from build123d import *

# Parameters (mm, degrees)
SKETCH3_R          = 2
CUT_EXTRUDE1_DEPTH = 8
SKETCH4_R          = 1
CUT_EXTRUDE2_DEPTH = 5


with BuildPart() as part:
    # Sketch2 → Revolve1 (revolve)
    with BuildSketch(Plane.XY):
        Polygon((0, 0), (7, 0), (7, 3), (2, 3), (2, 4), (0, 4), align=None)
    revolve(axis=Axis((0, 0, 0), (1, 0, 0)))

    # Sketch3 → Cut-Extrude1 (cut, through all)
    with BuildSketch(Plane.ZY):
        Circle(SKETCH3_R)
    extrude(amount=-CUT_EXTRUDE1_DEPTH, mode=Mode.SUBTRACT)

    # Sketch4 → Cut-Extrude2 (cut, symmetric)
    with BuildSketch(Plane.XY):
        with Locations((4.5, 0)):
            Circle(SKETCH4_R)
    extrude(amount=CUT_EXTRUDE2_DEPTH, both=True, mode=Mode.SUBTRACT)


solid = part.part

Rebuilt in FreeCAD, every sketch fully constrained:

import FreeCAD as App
import Part
import Sketcher
from FreeCAD import Vector

doc = App.newDocument("Part")
body = doc.addObject("PartDesign::Body", "Body")

sketch1 = body.newObject("Sketcher::SketchObject", "Sketch")
sketch1.AttachmentSupport = (doc.getObject("XY_Plane"), [""])
sketch1.MapMode = "FlatFace"
sketch1.addGeometry([
    Part.LineSegment(Vector(0, 0, 0), Vector(7, 0, 0)),
    Part.LineSegment(Vector(7, 0, 0), Vector(7, 3, 0)),
    Part.LineSegment(Vector(7, 3, 0), Vector(2, 3, 0)),
    Part.LineSegment(Vector(2, 3, 0), Vector(2, 4, 0)),
    Part.LineSegment(Vector(2, 4, 0), Vector(0, 4, 0)),
    Part.LineSegment(Vector(0, 4, 0), Vector(0, 0, 0)),
], False)
sketch1.addConstraint([
    Sketcher.Constraint("Coincident", 0, 2, 1, 1),
    Sketcher.Constraint("Coincident", 1, 2, 2, 1),
    Sketcher.Constraint("Coincident", 2, 2, 3, 1),
    Sketcher.Constraint("Coincident", 3, 2, 4, 1),
    Sketcher.Constraint("Coincident", 4, 2, 5, 1),
    Sketcher.Constraint("Coincident", 5, 2, 0, 1),
    Sketcher.Constraint("Horizontal", 0),
    Sketcher.Constraint("Vertical", 1),
    Sketcher.Constraint("Horizontal", 2),
    Sketcher.Constraint("Vertical", 3),
    Sketcher.Constraint("Horizontal", 4),
    Sketcher.Constraint("Vertical", 5),
    Sketcher.Constraint("Coincident", 5, 2, -1, 1),
    Sketcher.Constraint("DistanceX", 0, 1, 0, 2, 7.0),
    Sketcher.Constraint("DistanceX", 2, 2, 2, 1, 5.0),
    Sketcher.Constraint("DistanceY", 1, 1, 1, 2, 3.0),
    Sketcher.Constraint("DistanceY", 3, 1, 3, 2, 1.0),
])
revolution = body.newObject("PartDesign::Revolution", "Revolution")
revolution.Profile = sketch1
revolution.ReferenceAxis = (sketch1, ["H_Axis"])
revolution.Angle = 360

sketch2 = body.newObject("Sketcher::SketchObject", "Sketch001")
sketch2.AttachmentSupport = (doc.getObject("YZ_Plane"), [""])
sketch2.MapMode = "FlatFace"
sketch2.addGeometry(Part.Circle(Vector(0, 0, 0), Vector(0, 0, 1), 2), False)
sketch2.addConstraint([
    Sketcher.Constraint("Coincident", 0, 3, -1, 1),
    Sketcher.Constraint("Diameter", 0, 4.0),
])
pocket1 = body.newObject("PartDesign::Pocket", "Pocket")
pocket1.Profile = sketch2
pocket1.Type = "ThroughAll"
pocket1.Reversed = True

sketch3 = body.newObject("Sketcher::SketchObject", "Sketch002")
sketch3.AttachmentSupport = (doc.getObject("XY_Plane"), [""])
sketch3.MapMode = "FlatFace"
sketch3.addGeometry(Part.Circle(Vector(4.5, 0, 0), Vector(0, 0, 1), 1), False)
sketch3.addConstraint([
    Sketcher.Constraint("PointOnObject", 0, 3, -1),
    Sketcher.Constraint("Diameter", 0, 2.0),
    Sketcher.Constraint("DistanceX", -1, 1, 0, 3, 4.5),
])
pocket2 = body.newObject("PartDesign::Pocket", "Pocket001")
pocket2.Profile = sketch3
pocket2.Length = 10
pocket2.Midplane = True

doc.recompute()
